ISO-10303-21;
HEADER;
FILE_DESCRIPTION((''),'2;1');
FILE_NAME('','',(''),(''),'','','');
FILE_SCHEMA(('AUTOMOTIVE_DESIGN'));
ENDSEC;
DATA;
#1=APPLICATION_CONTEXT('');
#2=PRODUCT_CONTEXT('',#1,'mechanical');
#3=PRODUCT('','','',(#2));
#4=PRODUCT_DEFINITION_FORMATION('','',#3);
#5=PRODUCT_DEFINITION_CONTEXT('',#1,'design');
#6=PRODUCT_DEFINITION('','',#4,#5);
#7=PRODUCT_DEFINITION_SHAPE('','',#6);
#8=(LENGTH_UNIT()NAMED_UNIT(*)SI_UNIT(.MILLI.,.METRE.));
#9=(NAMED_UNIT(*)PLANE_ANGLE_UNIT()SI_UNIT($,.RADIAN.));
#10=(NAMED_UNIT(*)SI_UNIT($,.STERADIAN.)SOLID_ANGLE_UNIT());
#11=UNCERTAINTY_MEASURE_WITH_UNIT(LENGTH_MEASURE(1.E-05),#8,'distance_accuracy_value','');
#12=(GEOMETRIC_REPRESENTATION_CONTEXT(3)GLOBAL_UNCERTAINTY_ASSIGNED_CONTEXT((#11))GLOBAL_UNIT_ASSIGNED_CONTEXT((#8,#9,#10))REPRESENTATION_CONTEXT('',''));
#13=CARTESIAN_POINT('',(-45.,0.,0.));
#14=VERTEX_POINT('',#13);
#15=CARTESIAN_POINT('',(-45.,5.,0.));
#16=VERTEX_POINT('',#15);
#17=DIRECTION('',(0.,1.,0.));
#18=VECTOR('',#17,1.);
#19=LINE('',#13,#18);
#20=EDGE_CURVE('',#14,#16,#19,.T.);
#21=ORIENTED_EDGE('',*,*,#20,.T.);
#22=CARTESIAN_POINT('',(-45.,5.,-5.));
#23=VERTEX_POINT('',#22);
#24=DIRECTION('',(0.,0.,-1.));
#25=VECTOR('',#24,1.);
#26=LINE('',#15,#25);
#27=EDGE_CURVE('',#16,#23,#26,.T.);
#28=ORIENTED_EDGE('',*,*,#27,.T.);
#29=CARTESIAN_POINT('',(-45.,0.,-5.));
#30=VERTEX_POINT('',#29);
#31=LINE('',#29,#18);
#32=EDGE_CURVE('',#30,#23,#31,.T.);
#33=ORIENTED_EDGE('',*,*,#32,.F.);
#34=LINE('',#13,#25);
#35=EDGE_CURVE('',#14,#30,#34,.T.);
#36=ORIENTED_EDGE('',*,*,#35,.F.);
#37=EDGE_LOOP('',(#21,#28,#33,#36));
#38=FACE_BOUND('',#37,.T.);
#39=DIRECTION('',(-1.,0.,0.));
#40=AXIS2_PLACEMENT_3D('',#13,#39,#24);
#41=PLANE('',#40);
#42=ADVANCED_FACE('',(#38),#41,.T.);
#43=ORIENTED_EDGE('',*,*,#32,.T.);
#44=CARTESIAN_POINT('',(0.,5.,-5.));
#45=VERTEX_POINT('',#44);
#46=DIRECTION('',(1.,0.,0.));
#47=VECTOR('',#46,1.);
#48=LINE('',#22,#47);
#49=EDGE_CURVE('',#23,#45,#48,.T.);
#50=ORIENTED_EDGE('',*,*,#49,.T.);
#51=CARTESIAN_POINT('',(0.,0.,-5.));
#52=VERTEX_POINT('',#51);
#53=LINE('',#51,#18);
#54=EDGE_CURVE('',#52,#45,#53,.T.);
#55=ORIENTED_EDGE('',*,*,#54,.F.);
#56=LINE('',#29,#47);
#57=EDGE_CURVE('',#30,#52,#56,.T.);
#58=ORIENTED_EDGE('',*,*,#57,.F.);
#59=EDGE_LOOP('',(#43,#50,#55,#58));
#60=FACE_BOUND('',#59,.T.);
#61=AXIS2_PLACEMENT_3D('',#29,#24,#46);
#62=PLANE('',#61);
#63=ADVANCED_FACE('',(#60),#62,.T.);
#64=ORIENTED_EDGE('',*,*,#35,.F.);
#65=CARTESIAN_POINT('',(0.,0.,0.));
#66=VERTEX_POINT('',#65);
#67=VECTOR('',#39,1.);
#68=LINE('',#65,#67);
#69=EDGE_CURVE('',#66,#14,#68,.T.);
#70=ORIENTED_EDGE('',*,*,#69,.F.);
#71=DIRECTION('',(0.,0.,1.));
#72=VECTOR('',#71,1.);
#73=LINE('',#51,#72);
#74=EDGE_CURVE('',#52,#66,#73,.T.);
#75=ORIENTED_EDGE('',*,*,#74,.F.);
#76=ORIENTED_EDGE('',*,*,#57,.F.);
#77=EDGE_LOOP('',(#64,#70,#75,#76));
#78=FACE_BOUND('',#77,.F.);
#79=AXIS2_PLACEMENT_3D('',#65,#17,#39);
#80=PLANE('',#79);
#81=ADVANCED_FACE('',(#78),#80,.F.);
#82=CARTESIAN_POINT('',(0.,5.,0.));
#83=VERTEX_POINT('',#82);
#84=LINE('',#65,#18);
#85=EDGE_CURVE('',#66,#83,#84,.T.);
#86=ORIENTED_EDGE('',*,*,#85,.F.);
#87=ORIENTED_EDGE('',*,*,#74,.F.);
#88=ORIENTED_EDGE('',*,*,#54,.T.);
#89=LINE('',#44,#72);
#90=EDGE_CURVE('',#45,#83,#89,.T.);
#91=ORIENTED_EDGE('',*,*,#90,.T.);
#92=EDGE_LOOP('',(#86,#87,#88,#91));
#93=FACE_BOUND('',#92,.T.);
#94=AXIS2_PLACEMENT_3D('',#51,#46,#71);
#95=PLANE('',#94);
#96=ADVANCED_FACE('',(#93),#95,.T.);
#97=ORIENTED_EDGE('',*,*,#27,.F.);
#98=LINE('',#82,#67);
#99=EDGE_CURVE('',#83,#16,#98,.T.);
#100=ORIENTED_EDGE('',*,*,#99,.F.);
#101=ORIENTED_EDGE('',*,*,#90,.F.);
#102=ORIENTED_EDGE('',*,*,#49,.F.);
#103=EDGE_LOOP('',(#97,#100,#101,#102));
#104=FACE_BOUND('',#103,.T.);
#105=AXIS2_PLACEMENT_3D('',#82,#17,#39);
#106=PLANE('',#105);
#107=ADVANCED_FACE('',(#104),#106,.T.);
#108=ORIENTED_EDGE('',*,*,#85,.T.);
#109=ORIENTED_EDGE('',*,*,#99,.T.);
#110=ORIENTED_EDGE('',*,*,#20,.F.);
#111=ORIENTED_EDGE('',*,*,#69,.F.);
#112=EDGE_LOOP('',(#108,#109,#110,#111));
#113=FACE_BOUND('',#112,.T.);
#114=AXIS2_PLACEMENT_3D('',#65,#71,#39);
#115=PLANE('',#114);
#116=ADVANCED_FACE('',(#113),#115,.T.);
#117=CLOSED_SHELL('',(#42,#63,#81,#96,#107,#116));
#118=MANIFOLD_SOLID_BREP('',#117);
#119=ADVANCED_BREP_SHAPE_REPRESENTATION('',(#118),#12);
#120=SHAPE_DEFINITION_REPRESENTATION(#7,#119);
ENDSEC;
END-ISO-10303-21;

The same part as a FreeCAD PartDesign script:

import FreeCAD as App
import Part
import Sketcher

V = App.Vector
Q = App.Units.Quantity


def add_polygon(sketch, points):
    """Adds a closed chain of lines whose ends are joined by coincident constraints."""
    first, n = sketch.GeometryCount, len(points)
    for a, b in zip(points, points[1:] + points[:1]):
        sketch.addGeometry(Part.LineSegment(App.Vector(*a, 0), App.Vector(*b, 0)), False)
    for i in range(n):
        sketch.addConstraint(Sketcher.Constraint("Coincident", first + i, 2, first + (i + 1) % n, 1))

doc = App.newDocument("Part")
body = doc.addObject("PartDesign::Body", "Body")

sketch1 = body.newObject("Sketcher::SketchObject", "Sketch")
sketch1.AttachmentSupport = (doc.getObject("XZ_Plane"), [""])
sketch1.MapMode = "FlatFace"
add_polygon(sketch1, [(-45, 0), (0, 0), (0, -5), (-45, -5)])
sketch1.addConstraint([
    Sketcher.Constraint("Horizontal", 0),
    Sketcher.Constraint("Vertical", 1),
    Sketcher.Constraint("Horizontal", 2),
    Sketcher.Constraint("Vertical", 3),
    Sketcher.Constraint("Coincident", 0, 2, -1, 1),
    Sketcher.Constraint("DistanceX", 0, 1, 0, 2, Q("45 mm")),
    Sketcher.Constraint("DistanceY", 1, 2, 1, 1, Q("5 mm")),
])
pad1 = body.newObject("PartDesign::Pad", "Pad")
pad1.Profile = sketch1
pad1.Length = 5
pad1.Reversed = True

doc.recompute()
